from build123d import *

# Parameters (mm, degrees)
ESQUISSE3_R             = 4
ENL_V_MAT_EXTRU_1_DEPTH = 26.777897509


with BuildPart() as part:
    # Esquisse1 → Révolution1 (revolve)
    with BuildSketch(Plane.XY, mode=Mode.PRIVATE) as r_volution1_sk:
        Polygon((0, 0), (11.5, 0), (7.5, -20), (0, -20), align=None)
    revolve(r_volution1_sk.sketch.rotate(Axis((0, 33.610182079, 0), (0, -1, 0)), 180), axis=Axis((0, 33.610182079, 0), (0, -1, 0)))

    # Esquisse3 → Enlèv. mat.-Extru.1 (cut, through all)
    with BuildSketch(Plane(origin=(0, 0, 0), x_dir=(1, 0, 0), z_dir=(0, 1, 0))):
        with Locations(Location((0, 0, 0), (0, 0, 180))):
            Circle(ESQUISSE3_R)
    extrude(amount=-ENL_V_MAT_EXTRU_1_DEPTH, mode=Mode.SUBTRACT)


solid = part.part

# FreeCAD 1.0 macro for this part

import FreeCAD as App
import Part
import Sketcher

V = App.Vector
Q = App.Units.Quantity

doc = App.newDocument("Part")
body = doc.addObject("PartDesign::Body", "Body")

# Sketch on XY plane
sketch1 = body.newObject("Sketcher::SketchObject", "Sketch")
sketch1.AttachmentSupport = (doc.getObject("XY_Plane"), [""])
sketch1.MapMode = "FlatFace"
sketch1.addGeometry(Part.LineSegment(V(12, 0, 0), V(0, 0, 0)), False)
sketch1.addGeometry(Part.LineSegment(V(0, 0, 0), V(0, -20, 0)), False)
sketch1.addGeometry(Part.LineSegment(V(0, -20, 0), V(8, -20, 0)), False)
sketch1.addGeometry(Part.LineSegment(V(8, -20, 0), V(12, 0, 0)), False)
sketch1.addConstraint(Sketcher.Constraint("Coincident", 0, 2, 1, 1))
sketch1.addConstraint(Sketcher.Constraint("Coincident", 1, 2, 2, 1))
sketch1.addConstraint(Sketcher.Constraint("Coincident", 2, 2, 3, 1))
sketch1.addConstraint(Sketcher.Constraint("Coincident", 3, 2, 0, 1))
sketch1.addConstraint(Sketcher.Constraint("Horizontal", 0))
sketch1.addConstraint(Sketcher.Constraint("Vertical", 1))
sketch1.addConstraint(Sketcher.Constraint("Horizontal", 2))
sketch1.addConstraint(Sketcher.Constraint("Coincident", 0, 2, -1, 1))
sketch1.addConstraint(Sketcher.Constraint("DistanceY", 1, 2, 1, 1, Q("20 mm")))
sketch1.addConstraint(Sketcher.Constraint("DistanceX", 0, 2, 0, 1, Q("11.5 mm")))
sketch1.addConstraint(Sketcher.Constraint("DistanceX", 2, 1, 2, 2, Q("7.5 mm")))
revolution = body.newObject("PartDesign::Revolution", "Revolution")
revolution.Profile = sketch1
revolution.ReferenceAxis = (sketch1, ["V_Axis"])
revolution.Angle = 360

# Sketch on XZ plane
sketch2 = body.newObject("Sketcher::SketchObject", "Sketch001")
sketch2.AttachmentSupport = (doc.getObject("XZ_Plane"), [""])
sketch2.MapMode = "FlatFace"
sketch2.addGeometry(Part.Circle(V(0, 0, 0), V(0, 0, 1), 4), False)
sketch2.addConstraint(Sketcher.Constraint("Coincident", 0, 3, -1, 1))
sketch2.addConstraint(Sketcher.Constraint("Diameter", 0, Q("8 mm")))
pocket1 = body.newObject("PartDesign::Pocket", "Pocket")
pocket1.Profile = sketch2
pocket1.Type = "ThroughAll"
pocket1.Reversed = True

doc.recompute()
